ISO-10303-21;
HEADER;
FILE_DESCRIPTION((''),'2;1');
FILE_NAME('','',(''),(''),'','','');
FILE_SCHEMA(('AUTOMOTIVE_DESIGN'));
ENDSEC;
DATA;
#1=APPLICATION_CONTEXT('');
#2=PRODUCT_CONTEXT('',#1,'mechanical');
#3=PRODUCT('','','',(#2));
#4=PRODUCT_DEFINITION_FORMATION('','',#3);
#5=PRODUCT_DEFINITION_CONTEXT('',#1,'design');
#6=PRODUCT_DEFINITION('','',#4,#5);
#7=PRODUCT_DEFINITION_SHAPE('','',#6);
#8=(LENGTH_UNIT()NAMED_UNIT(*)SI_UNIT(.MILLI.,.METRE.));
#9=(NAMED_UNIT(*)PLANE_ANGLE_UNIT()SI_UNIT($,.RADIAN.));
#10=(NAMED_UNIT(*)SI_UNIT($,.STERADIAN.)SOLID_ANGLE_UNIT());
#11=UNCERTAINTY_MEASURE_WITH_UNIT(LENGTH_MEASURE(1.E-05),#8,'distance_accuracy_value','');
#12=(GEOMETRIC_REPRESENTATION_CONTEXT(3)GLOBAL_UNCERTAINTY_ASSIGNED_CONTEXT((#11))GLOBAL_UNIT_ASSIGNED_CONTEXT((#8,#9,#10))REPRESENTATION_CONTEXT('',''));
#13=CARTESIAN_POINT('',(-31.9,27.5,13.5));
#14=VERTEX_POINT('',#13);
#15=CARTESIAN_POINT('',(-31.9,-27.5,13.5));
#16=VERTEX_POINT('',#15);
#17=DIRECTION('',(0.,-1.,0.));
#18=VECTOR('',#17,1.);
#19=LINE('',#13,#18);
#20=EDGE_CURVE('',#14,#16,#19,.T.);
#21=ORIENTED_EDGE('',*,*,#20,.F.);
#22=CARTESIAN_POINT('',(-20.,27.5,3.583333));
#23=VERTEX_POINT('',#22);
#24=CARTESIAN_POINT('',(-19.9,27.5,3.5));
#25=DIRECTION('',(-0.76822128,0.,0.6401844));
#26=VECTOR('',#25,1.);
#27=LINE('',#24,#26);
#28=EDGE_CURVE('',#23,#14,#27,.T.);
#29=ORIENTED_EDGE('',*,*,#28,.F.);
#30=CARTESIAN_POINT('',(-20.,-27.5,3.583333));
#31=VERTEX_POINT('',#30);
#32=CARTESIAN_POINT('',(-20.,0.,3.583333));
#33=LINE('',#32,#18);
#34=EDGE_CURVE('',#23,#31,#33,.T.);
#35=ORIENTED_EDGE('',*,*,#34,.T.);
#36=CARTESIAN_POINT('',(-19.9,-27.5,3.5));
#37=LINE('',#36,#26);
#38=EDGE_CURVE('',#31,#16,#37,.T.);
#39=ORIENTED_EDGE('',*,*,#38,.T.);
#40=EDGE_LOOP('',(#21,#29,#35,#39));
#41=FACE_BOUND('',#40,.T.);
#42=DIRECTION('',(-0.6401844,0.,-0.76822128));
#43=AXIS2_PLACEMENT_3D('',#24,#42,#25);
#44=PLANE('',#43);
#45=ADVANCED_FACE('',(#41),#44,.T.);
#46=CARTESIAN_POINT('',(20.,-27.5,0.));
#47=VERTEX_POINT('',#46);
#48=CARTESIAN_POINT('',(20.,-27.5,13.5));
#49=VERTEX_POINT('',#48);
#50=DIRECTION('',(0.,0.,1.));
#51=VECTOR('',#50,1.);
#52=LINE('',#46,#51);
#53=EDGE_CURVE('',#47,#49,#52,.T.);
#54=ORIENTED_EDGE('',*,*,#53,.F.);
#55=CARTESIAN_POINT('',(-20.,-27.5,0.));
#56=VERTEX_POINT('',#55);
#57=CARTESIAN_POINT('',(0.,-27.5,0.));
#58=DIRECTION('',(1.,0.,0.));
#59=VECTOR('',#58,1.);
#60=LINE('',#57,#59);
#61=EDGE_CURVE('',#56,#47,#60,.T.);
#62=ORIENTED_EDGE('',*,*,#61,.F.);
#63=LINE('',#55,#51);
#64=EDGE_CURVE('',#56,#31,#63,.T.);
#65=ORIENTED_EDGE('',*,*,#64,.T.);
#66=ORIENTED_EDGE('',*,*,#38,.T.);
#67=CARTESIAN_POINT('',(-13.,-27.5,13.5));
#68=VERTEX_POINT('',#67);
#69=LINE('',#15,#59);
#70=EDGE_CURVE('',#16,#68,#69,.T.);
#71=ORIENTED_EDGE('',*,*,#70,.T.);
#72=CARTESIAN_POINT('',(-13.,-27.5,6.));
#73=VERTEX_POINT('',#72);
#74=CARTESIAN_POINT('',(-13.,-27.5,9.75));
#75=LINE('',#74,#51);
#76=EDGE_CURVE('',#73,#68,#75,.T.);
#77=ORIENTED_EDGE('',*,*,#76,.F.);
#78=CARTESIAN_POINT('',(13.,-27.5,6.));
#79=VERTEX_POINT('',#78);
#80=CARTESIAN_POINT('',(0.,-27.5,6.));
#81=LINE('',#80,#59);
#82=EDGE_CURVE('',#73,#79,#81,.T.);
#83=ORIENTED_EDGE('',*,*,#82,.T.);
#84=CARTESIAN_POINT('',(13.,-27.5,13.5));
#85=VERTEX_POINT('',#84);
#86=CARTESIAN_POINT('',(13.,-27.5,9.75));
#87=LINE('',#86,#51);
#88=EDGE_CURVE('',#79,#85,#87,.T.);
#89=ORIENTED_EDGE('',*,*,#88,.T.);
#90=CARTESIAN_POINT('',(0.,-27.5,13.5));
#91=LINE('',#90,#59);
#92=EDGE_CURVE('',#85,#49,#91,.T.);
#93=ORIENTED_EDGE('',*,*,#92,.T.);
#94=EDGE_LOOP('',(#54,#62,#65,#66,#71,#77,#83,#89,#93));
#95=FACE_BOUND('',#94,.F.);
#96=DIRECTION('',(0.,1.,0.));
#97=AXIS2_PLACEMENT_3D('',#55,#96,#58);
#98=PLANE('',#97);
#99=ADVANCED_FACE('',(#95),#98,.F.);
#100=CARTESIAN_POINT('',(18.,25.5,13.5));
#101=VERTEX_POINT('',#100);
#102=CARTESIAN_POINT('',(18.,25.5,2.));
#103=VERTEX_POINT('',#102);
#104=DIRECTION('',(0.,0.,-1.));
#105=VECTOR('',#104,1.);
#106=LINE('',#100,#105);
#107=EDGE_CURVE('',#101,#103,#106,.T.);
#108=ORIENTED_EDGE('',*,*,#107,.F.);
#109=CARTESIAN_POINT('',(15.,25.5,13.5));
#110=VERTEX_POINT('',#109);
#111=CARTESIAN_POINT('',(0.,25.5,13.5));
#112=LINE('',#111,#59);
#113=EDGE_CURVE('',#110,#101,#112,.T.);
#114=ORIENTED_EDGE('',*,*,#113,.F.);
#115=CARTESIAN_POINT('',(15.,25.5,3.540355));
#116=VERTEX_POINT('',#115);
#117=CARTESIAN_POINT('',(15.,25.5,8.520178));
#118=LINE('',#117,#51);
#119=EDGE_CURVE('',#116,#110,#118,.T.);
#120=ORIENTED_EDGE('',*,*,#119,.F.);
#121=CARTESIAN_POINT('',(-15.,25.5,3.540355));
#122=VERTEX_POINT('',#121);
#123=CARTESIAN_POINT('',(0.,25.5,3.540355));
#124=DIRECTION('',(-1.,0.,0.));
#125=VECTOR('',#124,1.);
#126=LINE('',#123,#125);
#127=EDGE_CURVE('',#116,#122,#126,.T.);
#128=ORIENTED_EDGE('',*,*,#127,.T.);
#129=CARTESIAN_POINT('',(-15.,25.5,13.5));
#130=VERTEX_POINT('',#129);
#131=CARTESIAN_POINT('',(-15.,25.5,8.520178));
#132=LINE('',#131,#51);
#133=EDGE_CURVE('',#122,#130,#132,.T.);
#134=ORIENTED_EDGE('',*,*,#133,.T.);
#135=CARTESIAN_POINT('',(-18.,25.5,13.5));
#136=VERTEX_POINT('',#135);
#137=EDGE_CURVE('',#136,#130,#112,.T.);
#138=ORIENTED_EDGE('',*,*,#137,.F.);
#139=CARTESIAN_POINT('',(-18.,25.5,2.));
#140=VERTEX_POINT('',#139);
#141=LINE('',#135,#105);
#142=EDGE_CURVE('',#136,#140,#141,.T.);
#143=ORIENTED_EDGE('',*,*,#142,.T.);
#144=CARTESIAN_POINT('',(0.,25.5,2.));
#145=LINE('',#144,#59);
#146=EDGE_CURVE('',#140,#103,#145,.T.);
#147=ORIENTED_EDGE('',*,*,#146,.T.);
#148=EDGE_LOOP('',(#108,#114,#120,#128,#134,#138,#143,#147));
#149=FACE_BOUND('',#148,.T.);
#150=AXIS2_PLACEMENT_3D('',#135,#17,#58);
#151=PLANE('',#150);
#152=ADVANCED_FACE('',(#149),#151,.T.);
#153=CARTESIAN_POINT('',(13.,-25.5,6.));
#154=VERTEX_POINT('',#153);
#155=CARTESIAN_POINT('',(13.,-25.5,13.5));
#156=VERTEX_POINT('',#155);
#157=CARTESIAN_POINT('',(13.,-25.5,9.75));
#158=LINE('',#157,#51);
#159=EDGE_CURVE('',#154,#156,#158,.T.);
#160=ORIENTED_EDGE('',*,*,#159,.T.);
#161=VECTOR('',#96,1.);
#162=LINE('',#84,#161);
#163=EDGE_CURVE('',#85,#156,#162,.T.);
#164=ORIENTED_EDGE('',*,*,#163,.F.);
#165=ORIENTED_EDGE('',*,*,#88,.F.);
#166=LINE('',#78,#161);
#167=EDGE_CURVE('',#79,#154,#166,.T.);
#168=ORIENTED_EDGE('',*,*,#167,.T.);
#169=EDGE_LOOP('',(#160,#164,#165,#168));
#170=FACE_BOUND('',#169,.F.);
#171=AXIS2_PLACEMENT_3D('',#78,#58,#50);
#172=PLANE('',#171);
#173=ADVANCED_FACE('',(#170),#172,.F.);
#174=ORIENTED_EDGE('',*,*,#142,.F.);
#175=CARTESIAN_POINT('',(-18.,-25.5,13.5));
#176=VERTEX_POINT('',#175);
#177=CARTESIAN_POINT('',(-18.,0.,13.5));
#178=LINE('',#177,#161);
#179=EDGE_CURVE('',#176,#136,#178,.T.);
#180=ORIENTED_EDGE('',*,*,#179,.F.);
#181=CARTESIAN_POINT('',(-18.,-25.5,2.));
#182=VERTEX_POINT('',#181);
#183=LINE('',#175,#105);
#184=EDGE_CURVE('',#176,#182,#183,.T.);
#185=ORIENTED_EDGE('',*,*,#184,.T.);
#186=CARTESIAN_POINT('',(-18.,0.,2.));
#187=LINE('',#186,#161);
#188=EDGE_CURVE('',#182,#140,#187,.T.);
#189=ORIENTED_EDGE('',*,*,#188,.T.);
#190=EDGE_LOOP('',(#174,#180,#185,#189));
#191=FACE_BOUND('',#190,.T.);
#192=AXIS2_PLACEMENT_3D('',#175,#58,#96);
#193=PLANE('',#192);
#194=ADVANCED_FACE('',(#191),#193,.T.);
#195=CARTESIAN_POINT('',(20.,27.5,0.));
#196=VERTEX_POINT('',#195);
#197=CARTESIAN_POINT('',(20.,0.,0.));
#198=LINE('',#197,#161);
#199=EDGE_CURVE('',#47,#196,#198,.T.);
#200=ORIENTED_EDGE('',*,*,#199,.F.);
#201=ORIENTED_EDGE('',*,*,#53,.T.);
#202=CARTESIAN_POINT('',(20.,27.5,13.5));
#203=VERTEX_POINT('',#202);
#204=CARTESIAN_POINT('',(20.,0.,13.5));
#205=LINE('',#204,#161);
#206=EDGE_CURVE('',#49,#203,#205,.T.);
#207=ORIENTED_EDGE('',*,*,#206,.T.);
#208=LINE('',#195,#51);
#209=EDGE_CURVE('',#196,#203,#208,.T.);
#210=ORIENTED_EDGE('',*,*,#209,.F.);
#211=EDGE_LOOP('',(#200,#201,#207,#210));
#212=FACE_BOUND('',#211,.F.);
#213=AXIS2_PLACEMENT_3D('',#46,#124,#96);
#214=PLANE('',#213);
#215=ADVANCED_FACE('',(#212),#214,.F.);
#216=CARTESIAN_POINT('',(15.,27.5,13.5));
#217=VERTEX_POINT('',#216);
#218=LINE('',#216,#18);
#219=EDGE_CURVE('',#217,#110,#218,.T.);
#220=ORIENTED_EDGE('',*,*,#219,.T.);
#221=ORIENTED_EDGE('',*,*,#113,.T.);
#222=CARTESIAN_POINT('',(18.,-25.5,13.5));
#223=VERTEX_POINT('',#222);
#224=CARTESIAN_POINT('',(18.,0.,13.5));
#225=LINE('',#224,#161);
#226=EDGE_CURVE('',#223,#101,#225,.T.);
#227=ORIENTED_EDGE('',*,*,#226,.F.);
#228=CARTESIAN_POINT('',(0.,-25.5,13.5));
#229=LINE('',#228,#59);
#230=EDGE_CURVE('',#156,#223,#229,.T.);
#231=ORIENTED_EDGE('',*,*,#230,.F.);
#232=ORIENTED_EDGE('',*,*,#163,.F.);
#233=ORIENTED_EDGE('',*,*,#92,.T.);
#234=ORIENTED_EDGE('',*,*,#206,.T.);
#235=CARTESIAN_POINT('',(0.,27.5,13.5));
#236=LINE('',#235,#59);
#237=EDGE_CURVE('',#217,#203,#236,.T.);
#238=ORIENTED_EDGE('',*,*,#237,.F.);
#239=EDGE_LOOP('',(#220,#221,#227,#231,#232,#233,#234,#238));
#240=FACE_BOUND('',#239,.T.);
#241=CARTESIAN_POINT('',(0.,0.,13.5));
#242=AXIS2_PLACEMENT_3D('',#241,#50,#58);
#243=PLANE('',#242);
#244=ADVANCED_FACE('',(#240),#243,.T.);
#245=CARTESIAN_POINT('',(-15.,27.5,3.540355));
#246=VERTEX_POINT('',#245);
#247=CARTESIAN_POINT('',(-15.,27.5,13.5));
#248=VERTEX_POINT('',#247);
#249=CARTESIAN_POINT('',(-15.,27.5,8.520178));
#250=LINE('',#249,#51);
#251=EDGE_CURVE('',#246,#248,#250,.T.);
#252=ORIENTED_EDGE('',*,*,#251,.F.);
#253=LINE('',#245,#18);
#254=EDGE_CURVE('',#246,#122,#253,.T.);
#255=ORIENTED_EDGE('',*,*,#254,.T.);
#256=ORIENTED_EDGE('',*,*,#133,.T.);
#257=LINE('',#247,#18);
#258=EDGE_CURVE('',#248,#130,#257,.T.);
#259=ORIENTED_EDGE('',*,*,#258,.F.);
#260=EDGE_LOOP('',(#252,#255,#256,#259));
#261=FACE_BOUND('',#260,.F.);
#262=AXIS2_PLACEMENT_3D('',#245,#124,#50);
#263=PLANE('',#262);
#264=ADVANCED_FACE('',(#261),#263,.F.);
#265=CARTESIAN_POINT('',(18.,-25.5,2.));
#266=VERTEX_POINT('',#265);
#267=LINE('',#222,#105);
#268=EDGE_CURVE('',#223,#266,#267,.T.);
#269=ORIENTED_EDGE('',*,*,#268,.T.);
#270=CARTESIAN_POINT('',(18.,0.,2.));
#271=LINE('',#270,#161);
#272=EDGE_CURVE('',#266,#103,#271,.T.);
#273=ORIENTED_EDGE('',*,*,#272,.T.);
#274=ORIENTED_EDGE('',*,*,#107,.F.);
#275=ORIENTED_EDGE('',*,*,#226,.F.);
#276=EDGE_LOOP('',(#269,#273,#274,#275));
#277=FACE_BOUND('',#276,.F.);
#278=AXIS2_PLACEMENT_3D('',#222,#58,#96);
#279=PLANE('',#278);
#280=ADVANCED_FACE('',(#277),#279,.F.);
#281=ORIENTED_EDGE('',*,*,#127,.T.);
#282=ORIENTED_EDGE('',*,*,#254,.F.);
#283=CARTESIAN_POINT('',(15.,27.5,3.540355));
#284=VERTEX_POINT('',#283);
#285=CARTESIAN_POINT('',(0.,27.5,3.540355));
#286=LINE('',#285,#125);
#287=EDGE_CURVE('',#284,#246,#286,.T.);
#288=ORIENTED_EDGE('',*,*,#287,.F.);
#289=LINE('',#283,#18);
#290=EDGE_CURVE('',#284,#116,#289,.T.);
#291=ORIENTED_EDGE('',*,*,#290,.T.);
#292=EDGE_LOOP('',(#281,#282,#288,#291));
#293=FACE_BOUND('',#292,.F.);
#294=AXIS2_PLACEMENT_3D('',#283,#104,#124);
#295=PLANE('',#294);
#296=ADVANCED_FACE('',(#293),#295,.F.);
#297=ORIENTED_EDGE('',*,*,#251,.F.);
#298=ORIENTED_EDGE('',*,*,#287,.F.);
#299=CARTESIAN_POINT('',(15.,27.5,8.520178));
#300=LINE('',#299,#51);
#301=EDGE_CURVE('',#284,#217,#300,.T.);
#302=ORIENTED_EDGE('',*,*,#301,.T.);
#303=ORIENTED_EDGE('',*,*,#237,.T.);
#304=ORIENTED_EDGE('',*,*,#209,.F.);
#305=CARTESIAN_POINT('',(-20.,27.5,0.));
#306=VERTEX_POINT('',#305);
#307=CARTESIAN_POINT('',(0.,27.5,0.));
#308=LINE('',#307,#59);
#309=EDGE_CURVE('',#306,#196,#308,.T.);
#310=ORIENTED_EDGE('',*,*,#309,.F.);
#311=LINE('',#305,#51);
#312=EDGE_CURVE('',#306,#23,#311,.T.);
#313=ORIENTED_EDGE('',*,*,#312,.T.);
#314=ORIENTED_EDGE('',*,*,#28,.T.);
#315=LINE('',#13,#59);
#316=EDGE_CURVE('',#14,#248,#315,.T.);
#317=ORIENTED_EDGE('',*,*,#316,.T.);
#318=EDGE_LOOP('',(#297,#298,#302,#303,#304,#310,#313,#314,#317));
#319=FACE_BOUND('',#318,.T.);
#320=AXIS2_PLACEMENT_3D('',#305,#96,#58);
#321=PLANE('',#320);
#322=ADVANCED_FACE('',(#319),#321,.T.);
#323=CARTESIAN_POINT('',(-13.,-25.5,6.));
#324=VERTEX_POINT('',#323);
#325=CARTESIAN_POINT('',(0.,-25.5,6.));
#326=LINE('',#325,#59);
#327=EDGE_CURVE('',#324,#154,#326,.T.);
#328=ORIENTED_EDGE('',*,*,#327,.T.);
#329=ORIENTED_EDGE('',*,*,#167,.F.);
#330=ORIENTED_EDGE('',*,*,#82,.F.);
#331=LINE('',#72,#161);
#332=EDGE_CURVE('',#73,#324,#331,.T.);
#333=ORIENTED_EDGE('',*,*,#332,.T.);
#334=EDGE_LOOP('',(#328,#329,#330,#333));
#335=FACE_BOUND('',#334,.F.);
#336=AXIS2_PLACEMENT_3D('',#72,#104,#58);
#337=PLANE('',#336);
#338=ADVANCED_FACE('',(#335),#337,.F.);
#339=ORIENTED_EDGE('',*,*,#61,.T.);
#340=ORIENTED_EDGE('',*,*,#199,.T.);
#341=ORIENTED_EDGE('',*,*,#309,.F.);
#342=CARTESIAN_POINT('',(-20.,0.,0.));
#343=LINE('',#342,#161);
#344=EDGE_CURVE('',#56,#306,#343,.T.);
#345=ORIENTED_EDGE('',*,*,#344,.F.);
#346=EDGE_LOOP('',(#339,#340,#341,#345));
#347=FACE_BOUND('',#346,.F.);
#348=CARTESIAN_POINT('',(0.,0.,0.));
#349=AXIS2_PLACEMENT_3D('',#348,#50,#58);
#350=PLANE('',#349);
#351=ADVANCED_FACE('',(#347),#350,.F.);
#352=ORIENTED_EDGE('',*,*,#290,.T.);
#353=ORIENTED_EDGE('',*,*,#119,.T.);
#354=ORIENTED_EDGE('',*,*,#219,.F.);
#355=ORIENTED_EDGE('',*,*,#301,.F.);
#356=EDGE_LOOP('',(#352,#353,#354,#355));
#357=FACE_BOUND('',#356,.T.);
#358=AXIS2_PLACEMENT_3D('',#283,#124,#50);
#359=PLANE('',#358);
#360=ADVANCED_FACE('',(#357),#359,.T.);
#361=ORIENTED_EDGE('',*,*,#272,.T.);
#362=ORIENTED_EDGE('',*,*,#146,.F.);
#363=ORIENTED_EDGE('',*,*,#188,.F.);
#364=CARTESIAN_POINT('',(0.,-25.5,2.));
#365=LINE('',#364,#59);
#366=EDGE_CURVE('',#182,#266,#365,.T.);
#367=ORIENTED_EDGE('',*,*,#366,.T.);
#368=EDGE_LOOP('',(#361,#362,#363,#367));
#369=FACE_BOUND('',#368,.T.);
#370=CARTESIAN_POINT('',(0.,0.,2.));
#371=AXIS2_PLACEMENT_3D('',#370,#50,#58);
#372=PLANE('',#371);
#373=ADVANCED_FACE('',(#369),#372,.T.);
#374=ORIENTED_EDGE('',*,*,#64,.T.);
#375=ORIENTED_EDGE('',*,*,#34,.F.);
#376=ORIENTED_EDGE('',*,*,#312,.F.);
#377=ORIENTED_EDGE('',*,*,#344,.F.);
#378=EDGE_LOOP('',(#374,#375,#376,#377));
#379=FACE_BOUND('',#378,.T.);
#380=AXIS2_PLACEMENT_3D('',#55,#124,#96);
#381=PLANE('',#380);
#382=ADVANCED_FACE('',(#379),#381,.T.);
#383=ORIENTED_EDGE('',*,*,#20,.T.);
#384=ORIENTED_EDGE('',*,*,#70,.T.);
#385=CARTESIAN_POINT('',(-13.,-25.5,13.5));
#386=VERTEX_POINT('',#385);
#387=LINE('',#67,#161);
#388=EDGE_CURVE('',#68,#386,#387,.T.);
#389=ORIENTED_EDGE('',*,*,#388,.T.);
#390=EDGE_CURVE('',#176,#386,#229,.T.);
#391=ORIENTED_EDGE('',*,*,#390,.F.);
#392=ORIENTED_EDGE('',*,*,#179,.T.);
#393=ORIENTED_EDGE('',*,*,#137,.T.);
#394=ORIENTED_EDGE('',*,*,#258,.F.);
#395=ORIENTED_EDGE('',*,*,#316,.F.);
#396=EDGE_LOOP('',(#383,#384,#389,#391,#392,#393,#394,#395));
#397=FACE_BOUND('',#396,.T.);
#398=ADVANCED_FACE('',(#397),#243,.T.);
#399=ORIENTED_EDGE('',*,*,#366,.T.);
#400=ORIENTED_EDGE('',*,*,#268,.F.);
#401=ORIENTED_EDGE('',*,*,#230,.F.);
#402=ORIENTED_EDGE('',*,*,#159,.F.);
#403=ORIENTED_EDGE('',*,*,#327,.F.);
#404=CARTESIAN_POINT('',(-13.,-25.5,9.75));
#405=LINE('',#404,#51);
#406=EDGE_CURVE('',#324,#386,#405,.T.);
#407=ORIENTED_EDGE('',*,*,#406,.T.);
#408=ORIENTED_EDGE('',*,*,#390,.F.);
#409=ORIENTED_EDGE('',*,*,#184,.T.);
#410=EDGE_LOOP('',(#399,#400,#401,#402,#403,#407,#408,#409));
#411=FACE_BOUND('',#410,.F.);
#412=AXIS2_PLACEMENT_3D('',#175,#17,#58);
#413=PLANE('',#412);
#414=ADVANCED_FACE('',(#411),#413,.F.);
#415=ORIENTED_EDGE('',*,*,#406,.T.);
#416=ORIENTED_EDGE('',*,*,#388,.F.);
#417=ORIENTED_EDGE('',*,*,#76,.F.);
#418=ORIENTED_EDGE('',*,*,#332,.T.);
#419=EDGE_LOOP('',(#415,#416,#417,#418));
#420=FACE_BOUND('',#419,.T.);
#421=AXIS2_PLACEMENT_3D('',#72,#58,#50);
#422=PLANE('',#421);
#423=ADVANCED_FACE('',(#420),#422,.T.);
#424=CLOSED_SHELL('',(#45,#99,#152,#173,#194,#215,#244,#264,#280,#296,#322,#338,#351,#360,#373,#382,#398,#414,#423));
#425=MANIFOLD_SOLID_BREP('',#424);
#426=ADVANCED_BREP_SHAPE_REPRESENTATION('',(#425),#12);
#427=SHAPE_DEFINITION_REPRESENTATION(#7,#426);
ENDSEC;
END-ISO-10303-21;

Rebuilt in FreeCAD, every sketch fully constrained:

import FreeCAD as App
import Part
import Sketcher


def add_polygon(sketch, points):
    """Adds a closed chain of lines whose ends are joined by coincident constraints."""
    first, n = sketch.GeometryCount, len(points)
    for a, b in zip(points, points[1:] + points[:1]):
        sketch.addGeometry(Part.LineSegment(App.Vector(*a, 0), App.Vector(*b, 0)), False)
    for i in range(n):
        sketch.addConstraint(Sketcher.Constraint("Coincident", first + i, 2, first + (i + 1) % n, 1))

doc = App.newDocument("Part")
body = doc.addObject("PartDesign::Body", "Body")

# Sketch on XY plane
sketch1 = doc.addObject("Sketcher::SketchObject", "Sketch")
body.addObject(sketch1)
sketch1.AttachmentSupport = (doc.XY_Plane, [""])
sketch1.MapMode = "FlatFace"
add_polygon(sketch1, [(-20, 28), (-20, -28), (20, -28), (20, 28)])  # lines 0-3
sketch1.addConstraint([
    Sketcher.Constraint("Vertical", 0),
    Sketcher.Constraint("Horizontal", 1),
    Sketcher.Constraint("Vertical", 2),
    Sketcher.Constraint("Horizontal", 3),
    Sketcher.Constraint("Symmetric", 0, 2, 2, 2, -1, 1),
    Sketcher.Constraint("DistanceX", 1, 1, 1, 2, 40.0),
    Sketcher.Constraint("DistanceY", 0, 2, 0, 1, 55.0),
])
pad1 = doc.addObject("PartDesign::Pad", "Pad")
body.addObject(pad1)
pad1.Profile = sketch1
pad1.Length = 13.5

# Sketch on XY plane
sketch2 = doc.addObject("Sketcher::SketchObject", "Sketch001")
body.addObject(sketch2)
sketch2.AttachmentSupport = (doc.XY_Plane, [""])
sketch2.MapMode = "FlatFace"
sketch2.AttachmentOffset = App.Placement(App.Vector(0, 0, 13.5), App.Rotation())
add_polygon(sketch2, [(-18, 26), (-18, -26), (18, -26), (18, 26)])  # lines 0-3
sketch2.addConstraint([
    Sketcher.Constraint("Vertical", 0),
    Sketcher.Constraint("Horizontal", 1),
    Sketcher.Constraint("Vertical", 2),
    Sketcher.Constraint("Horizontal", 3),
    Sketcher.Constraint("Symmetric", 0, 2, 2, 2, -1, 1),
    Sketcher.Constraint("DistanceX", 1, 1, 1, 2, 36.0),
    Sketcher.Constraint("DistanceY", 0, 2, 0, 1, 51.0),
])
pocket1 = doc.addObject("PartDesign::Pocket", "Pocket")
body.addObject(pocket1)
pocket1.Profile = sketch2
pocket1.Length = 11.5

# Sketch on XZ plane
sketch3 = doc.addObject("Sketcher::SketchObject", "Sketch002")
body.addObject(sketch3)
sketch3.AttachmentSupport = (doc.XZ_Plane, [""])
sketch3.MapMode = "FlatFace"
sketch3.AttachmentOffset = App.Placement(App.Vector(0, 0, 27.5), App.Rotation())
add_polygon(sketch3, [(-13, 14), (-13, 6), (13, 6), (13, 14)])  # lines 0-3
sketch3.addConstraint([
    Sketcher.Constraint("Vertical", 0),
    Sketcher.Constraint("Horizontal", 1),
    Sketcher.Constraint("Vertical", 2),
    Sketcher.Constraint("Horizontal", 3),
    Sketcher.Constraint("DistanceX", 1, 1, 1, 2, 26.0),
    Sketcher.Constraint("DistanceY", 0, 2, 0, 1, 7.5),
    Sketcher.Constraint("DistanceX", 0, 2, -1, 1, 13.0),
    Sketcher.Constraint("DistanceY", -1, 1, 0, 2, 6.0),
])
pocket2 = doc.addObject("PartDesign::Pocket", "Pocket001")
body.addObject(pocket2)
pocket2.Profile = sketch3
pocket2.Length = 2

# Sketch on XZ plane
sketch4 = doc.addObject("Sketcher::SketchObject", "Sketch003")
body.addObject(sketch4)
sketch4.AttachmentSupport = (doc.XZ_Plane, [""])
sketch4.MapMode = "FlatFace"
sketch4.AttachmentOffset = App.Placement(App.Vector(0, 0, -27.5), App.Rotation())
add_polygon(sketch4, [(15, 14), (15, 4), (-15, 4), (-15, 14)])  # lines 0-3
sketch4.addConstraint([
    Sketcher.Constraint("Vertical", 0),
    Sketcher.Constraint("Horizontal", 1),
    Sketcher.Constraint("Vertical", 2),
    Sketcher.Constraint("Horizontal", 3),
    Sketcher.Constraint("DistanceX", 1, 2, 1, 1, 30.0),
    Sketcher.Constraint("DistanceX", -1, 1, 0, 2, 15.0),
    Sketcher.Constraint("DistanceY", -1, 1, 2, 2, 13.5),
    Sketcher.Constraint("DistanceY", 0, 2, 0, 1, 9.959645),
])
pocket3 = doc.addObject("PartDesign::Pocket", "Pocket002")
body.addObject(pocket3)
pocket3.Profile = sketch4
pocket3.Length = 2
pocket3.Reversed = True

# Sketch on XZ plane
sketch5 = doc.addObject("Sketcher::SketchObject", "Sketch004")
body.addObject(sketch5)
sketch5.AttachmentSupport = (doc.XZ_Plane, [""])
sketch5.MapMode = "FlatFace"
sketch5.AttachmentOffset = App.Placement(App.Vector(0, 0, -27.5), App.Rotation())
add_polygon(sketch5, [(-20, 14), (-20, 4), (-32, 14)])  # lines 0-2
sketch5.addConstraint([
    Sketcher.Constraint("Vertical", 0),
    Sketcher.Constraint("Horizontal", 2),
    Sketcher.Constraint("DistanceX", 2, 1, 2, 2, 12.0),
    Sketcher.Constraint("DistanceY", 0, 2, 0, 1, 10.0),
    Sketcher.Constraint("DistanceX", 0, 2, -1, 1, 19.9),
    Sketcher.Constraint("DistanceY", -1, 1, 0, 2, 3.5),
])
pad2 = doc.addObject("PartDesign::Pad", "Pad001")
body.addObject(pad2)
pad2.Profile = sketch5
pad2.Length = 55

doc.recompute()
